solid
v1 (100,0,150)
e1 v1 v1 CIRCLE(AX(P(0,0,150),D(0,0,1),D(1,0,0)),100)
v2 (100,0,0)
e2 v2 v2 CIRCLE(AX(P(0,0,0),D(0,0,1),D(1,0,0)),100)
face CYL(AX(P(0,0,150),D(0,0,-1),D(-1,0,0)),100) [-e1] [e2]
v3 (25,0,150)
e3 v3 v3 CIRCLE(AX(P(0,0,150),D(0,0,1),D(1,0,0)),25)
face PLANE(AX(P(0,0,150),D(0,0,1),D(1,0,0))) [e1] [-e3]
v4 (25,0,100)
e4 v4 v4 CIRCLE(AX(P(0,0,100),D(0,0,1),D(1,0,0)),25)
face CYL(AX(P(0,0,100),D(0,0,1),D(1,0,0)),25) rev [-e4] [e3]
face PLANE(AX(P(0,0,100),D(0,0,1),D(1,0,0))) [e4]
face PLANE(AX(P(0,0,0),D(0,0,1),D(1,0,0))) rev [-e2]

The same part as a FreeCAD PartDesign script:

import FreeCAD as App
import Part
import Sketcher

V = App.Vector
Q = App.Units.Quantity

doc = App.newDocument("Part")
body = doc.addObject("PartDesign::Body", "Body")

sketch1 = body.newObject("Sketcher::SketchObject", "Sketch")
sketch1.AttachmentSupport = (doc.getObject("XY_Plane"), [""])
sketch1.MapMode = "FlatFace"
sketch1.addGeometry(Part.Circle(V(0, 0, 0), V(0, 0, 1), 100), False)
sketch1.addConstraint(Sketcher.Constraint("Coincident", 0, 3, -1, 1))
sketch1.addConstraint(Sketcher.Constraint("Diameter", 0, Q("200 mm")))
pad1 = body.newObject("PartDesign::Pad", "Pad")
pad1.Profile = sketch1
pad1.Length = 150

sketch2 = body.newObject("Sketcher::SketchObject", "Sketch001")
sketch2.AttachmentSupport = (doc.getObject("XY_Plane"), [""])
sketch2.MapMode = "FlatFace"
sketch2.AttachmentOffset = App.Placement(V(0, 0, 150), App.Rotation())
sketch2.addGeometry(Part.Circle(V(0, 0, 0), V(0, 0, 1), 25), False)
sketch2.addConstraint(Sketcher.Constraint("Coincident", 0, 3, -1, 1))
sketch2.addConstraint(Sketcher.Constraint("Diameter", 0, Q("50 mm")))
pocket1 = body.newObject("PartDesign::Pocket", "Pocket")
pocket1.Profile = sketch2
pocket1.Length = 50

doc.recompute()
